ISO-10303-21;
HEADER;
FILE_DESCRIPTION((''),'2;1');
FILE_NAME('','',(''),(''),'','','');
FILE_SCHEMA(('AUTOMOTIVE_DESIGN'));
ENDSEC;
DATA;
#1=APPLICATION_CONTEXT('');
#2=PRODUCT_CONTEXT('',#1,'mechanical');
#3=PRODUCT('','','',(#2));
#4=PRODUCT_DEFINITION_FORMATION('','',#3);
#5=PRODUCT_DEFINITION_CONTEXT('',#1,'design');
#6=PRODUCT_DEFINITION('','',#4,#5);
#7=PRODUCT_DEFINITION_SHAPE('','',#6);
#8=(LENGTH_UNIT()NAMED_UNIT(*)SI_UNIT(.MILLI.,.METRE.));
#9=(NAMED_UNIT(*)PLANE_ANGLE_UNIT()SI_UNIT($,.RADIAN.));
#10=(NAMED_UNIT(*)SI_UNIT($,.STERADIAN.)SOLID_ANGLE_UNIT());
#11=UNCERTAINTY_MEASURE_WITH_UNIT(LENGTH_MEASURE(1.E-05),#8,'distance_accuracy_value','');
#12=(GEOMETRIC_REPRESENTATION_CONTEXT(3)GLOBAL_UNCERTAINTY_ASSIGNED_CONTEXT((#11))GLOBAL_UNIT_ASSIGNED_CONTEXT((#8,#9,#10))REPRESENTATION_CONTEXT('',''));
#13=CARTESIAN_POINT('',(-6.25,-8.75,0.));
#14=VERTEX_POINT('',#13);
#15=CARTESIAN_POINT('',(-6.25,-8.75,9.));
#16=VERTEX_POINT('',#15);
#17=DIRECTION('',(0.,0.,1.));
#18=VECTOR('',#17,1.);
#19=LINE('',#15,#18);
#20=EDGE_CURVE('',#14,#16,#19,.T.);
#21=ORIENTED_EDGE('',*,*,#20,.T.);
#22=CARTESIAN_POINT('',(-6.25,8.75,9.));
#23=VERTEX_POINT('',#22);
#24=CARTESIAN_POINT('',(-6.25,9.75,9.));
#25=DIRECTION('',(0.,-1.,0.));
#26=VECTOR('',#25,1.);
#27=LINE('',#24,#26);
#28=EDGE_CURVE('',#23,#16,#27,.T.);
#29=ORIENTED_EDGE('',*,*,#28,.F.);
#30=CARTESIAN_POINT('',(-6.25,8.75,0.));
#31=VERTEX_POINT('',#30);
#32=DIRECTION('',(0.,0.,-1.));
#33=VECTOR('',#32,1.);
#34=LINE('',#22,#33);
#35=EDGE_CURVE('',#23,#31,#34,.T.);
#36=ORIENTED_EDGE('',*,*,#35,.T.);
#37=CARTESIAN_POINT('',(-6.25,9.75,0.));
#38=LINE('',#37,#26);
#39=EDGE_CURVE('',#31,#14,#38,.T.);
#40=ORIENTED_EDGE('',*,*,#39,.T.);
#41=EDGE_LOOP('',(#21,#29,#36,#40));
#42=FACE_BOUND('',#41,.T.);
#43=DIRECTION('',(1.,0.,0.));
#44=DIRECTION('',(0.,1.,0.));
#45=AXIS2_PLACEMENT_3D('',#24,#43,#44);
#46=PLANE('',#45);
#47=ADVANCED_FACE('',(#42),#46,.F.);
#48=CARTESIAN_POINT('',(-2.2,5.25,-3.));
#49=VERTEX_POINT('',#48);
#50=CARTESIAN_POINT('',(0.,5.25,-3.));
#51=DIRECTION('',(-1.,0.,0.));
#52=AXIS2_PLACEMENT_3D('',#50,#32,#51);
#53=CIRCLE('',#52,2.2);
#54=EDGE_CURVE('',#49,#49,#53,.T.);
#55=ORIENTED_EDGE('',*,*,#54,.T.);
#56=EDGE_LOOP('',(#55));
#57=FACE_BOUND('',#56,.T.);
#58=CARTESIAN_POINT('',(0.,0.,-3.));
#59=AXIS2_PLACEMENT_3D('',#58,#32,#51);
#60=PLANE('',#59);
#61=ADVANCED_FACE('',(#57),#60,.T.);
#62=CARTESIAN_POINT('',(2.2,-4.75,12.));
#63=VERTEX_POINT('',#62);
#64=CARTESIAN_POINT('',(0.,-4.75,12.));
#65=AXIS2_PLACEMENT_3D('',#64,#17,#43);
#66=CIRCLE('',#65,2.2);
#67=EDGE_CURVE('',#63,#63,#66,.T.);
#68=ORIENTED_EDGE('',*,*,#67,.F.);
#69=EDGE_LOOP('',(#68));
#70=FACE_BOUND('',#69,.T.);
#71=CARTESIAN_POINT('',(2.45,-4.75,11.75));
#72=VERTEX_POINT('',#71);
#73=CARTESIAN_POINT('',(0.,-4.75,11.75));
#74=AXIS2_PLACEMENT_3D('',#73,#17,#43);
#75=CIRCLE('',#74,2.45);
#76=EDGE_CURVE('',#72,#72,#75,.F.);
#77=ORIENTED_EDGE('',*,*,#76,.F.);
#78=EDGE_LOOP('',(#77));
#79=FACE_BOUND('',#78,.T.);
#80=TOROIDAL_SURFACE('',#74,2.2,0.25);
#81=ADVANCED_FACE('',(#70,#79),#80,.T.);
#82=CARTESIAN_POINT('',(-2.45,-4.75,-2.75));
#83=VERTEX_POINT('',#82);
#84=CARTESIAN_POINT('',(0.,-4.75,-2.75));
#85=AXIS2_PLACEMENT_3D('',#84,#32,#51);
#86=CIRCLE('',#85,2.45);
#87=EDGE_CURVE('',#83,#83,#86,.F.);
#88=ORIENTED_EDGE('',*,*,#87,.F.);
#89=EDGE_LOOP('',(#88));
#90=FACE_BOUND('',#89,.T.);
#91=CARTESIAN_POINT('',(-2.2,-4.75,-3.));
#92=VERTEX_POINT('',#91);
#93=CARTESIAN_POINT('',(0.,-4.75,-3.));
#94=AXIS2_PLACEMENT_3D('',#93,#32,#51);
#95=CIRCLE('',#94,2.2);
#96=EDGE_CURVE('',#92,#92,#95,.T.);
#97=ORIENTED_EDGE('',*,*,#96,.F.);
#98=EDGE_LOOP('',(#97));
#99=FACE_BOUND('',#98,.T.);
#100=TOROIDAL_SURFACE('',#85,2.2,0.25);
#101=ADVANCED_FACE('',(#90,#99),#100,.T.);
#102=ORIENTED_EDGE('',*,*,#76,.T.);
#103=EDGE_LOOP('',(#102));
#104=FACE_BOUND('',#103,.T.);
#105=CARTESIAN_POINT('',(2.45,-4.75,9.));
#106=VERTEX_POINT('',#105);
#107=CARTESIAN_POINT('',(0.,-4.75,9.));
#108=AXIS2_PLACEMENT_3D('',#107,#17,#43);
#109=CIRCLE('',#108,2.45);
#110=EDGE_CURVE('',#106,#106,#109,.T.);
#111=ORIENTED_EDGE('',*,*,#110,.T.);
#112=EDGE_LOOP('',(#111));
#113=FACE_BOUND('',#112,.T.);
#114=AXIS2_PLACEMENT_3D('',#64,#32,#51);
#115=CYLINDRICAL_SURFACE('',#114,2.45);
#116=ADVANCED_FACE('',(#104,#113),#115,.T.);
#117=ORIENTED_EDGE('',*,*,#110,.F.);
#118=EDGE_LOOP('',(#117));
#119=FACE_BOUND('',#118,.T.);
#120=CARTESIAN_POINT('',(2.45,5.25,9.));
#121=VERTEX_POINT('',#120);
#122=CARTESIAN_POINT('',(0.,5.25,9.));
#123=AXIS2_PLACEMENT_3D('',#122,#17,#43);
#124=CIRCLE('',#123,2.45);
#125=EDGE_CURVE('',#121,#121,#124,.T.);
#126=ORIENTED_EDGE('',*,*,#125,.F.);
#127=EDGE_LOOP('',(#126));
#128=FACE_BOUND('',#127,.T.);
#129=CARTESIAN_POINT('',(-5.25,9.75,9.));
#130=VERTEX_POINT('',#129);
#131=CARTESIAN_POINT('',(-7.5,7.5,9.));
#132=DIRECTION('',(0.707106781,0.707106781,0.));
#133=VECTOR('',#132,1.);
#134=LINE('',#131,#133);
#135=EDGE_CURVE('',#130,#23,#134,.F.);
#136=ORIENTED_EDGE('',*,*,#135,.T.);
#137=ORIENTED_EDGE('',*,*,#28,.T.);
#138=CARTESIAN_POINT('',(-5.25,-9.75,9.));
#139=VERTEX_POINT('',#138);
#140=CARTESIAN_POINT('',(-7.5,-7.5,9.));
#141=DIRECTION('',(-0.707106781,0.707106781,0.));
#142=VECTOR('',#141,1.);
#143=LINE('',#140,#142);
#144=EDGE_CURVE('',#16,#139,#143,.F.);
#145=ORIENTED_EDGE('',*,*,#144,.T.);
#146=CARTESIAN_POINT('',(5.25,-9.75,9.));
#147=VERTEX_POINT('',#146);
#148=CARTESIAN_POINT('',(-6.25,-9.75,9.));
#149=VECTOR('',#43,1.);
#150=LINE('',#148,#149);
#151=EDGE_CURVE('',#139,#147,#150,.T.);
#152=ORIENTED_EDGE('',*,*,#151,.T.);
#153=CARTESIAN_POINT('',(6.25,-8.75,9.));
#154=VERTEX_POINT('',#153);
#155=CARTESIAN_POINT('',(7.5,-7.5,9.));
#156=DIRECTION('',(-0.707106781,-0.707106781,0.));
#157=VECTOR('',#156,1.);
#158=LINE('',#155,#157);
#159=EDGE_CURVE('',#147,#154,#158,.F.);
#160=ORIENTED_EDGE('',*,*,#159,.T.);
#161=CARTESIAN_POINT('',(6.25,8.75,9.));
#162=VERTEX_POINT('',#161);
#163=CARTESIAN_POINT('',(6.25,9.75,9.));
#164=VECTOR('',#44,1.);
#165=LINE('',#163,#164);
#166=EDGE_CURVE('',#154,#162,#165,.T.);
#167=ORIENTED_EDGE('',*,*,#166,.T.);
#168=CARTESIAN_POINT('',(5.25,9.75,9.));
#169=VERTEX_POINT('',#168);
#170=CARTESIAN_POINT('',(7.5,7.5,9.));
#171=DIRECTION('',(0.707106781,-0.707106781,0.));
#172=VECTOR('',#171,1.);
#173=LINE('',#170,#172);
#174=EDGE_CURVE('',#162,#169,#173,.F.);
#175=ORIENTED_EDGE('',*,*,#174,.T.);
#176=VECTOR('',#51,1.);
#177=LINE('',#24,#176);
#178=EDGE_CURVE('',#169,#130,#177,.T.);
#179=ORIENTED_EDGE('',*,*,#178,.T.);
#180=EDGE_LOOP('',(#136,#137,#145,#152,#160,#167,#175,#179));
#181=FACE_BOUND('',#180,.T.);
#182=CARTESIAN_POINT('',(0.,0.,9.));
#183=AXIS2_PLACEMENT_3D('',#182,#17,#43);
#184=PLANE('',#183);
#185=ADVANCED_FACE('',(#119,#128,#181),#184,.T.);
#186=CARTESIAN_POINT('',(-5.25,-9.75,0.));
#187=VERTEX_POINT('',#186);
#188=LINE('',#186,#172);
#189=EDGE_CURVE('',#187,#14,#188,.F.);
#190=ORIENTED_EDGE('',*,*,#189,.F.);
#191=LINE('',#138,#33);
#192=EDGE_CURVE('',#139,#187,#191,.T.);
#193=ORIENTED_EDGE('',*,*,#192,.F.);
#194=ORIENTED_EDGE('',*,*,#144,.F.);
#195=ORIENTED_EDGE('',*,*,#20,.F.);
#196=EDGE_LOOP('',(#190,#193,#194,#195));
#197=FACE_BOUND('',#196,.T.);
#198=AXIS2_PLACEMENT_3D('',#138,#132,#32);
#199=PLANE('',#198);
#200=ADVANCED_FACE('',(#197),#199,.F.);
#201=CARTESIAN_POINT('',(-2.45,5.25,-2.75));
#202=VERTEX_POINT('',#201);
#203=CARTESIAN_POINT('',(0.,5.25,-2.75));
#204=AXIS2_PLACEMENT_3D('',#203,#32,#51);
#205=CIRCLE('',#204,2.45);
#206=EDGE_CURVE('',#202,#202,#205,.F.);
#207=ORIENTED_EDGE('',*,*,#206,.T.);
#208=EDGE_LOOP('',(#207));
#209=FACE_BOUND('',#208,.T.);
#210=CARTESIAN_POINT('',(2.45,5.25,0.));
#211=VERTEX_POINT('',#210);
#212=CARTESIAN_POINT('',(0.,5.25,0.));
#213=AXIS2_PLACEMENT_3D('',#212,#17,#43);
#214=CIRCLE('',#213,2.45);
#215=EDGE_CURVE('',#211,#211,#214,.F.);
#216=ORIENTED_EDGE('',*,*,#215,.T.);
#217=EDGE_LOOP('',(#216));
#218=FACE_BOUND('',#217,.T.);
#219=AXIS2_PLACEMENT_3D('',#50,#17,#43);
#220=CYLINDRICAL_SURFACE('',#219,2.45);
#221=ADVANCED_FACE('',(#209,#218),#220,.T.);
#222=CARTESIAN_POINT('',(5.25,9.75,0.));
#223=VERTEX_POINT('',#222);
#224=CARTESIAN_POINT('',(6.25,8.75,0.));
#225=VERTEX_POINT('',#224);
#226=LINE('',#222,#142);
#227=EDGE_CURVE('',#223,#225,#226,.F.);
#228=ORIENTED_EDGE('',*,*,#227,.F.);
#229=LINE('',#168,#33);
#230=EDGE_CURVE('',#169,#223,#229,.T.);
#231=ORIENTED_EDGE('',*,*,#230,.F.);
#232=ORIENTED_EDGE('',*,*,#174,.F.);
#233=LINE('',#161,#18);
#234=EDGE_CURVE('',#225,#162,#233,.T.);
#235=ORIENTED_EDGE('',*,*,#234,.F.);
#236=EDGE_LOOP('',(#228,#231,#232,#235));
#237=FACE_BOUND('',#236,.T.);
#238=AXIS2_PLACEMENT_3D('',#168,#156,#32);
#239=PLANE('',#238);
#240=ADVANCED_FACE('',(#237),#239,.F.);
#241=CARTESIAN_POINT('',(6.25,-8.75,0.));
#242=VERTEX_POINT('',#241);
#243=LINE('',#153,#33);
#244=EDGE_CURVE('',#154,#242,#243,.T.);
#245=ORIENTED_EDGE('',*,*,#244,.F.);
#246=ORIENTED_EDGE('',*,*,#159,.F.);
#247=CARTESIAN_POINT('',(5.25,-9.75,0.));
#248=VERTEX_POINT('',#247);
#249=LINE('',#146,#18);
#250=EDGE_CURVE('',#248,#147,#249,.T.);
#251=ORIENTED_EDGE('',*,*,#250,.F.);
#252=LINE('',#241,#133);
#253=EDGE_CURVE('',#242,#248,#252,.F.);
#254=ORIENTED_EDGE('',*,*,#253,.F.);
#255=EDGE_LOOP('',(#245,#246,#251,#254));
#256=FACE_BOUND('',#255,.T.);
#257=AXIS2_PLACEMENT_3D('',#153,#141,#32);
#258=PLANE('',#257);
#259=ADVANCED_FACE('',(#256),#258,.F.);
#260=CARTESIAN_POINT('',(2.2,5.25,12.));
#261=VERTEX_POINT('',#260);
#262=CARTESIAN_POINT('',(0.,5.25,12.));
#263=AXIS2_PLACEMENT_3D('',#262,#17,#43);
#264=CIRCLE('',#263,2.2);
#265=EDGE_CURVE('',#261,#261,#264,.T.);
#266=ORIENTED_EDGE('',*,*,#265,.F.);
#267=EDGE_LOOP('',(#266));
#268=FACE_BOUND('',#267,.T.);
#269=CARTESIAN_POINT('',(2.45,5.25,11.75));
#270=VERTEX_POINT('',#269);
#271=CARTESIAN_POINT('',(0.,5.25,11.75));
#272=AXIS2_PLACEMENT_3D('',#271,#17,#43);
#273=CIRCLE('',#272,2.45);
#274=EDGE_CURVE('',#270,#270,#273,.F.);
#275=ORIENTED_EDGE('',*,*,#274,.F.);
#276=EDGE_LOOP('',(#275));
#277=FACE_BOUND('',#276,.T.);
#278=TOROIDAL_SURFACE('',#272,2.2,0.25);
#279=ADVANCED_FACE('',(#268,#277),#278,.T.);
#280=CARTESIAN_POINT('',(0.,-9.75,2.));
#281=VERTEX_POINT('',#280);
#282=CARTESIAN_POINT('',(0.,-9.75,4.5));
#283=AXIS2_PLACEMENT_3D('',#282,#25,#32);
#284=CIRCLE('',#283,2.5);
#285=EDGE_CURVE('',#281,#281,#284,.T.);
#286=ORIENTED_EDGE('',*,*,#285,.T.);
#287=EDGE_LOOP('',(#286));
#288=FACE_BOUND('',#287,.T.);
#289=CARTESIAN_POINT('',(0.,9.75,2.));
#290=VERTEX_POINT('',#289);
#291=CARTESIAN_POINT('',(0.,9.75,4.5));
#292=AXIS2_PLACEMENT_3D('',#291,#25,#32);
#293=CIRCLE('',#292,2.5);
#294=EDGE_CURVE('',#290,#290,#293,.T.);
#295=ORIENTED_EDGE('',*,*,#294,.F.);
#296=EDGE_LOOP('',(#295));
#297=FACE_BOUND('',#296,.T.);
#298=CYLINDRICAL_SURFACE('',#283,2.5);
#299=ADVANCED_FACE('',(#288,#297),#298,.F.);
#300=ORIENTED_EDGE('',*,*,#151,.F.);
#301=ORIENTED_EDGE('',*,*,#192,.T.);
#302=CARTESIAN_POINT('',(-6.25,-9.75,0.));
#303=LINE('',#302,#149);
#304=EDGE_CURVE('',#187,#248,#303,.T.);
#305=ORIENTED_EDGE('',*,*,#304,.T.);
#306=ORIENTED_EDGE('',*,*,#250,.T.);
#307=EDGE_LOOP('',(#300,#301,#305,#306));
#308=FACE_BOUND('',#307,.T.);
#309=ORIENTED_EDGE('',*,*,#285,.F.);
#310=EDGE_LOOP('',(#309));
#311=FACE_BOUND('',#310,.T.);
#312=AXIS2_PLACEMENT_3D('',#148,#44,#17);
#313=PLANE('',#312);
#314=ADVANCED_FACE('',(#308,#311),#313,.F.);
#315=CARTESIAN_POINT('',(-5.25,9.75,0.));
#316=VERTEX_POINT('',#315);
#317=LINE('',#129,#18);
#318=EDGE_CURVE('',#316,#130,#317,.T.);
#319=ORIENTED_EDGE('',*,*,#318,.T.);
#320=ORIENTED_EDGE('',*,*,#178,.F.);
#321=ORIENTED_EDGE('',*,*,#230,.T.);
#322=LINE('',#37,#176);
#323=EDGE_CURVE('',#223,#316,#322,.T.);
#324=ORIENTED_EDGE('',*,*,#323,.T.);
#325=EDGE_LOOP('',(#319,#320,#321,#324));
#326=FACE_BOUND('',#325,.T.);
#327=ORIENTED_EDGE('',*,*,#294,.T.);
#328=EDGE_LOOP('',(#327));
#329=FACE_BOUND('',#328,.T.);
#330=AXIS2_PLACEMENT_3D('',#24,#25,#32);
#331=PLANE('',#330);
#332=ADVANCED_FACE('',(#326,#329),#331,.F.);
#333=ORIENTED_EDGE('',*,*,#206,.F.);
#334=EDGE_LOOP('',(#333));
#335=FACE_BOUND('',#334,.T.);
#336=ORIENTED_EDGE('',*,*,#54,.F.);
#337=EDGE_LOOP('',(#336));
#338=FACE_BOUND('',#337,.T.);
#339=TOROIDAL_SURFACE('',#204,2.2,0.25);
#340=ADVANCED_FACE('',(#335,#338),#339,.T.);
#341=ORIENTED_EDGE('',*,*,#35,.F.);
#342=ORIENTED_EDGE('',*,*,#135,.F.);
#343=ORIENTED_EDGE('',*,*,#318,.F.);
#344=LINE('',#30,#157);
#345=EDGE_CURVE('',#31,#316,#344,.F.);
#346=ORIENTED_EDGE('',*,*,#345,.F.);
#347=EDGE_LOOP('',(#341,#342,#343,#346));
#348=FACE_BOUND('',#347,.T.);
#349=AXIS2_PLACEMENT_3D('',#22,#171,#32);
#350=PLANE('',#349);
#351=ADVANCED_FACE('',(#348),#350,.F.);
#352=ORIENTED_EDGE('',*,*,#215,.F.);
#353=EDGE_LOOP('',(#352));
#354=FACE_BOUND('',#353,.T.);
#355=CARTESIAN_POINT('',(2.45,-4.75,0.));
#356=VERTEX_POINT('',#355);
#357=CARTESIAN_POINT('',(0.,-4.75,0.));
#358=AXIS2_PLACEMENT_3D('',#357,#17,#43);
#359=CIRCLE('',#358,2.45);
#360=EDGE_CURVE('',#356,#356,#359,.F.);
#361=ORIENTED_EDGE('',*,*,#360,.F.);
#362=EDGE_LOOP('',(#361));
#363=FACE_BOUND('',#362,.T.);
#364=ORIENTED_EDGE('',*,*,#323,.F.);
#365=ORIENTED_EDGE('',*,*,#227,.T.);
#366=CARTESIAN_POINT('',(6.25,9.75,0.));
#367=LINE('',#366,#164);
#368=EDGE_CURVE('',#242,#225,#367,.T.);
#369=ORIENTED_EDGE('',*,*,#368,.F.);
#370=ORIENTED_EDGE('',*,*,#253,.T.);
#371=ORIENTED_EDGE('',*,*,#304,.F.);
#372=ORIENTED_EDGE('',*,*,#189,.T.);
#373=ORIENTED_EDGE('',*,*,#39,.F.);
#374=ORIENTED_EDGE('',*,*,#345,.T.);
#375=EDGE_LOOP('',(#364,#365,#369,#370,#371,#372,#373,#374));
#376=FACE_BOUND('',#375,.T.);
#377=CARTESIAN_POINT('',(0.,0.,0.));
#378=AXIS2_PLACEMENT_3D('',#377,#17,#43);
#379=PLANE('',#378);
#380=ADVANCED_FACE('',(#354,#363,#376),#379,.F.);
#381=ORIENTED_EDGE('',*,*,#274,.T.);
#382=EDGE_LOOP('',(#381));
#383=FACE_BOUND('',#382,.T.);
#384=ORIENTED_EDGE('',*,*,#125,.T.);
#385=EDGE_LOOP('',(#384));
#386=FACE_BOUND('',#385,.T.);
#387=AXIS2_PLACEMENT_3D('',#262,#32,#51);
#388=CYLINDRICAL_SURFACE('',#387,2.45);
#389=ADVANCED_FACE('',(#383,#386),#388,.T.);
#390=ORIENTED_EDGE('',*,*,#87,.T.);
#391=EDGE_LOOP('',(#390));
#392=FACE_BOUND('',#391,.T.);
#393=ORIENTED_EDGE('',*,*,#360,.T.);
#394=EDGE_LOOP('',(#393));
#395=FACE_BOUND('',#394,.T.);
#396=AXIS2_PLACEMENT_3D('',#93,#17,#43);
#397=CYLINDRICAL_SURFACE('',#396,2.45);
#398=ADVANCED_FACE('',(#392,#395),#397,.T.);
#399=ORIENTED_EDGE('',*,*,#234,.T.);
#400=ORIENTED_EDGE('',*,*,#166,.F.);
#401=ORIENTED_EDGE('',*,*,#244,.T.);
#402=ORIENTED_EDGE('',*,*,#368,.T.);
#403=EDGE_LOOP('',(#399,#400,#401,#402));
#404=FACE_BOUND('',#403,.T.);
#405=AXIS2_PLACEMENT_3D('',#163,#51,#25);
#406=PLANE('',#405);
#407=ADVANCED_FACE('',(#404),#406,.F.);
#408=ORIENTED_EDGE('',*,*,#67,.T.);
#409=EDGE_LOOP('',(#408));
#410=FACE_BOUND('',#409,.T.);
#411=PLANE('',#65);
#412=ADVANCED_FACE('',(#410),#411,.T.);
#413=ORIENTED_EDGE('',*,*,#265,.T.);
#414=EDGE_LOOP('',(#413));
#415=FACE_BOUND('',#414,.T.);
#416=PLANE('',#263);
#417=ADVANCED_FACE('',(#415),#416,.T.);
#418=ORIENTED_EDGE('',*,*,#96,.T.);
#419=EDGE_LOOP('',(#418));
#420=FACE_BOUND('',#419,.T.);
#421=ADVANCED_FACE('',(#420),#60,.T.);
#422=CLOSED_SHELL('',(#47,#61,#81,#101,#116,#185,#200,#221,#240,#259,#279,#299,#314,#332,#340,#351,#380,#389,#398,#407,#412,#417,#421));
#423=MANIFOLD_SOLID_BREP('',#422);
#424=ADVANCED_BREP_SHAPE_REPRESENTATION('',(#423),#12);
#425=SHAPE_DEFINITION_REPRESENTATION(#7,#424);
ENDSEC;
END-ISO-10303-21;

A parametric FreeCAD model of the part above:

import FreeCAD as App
import Part
import Sketcher

V = App.Vector


def edges_at(feature, points):
    """Names of the edges that pass closest to the given points."""
    edges = feature.Shape.Edges
    near = lambda p: min(range(len(edges)), key=lambda i: edges[i].distToShape(Part.Vertex(*p))[0])
    return sorted({f"Edge{near(p) + 1}" for p in points})


def add_polygon(sketch, points):
    """Adds a closed chain of lines whose ends are joined by coincident constraints."""
    first, n = sketch.GeometryCount, len(points)
    for a, b in zip(points, points[1:] + points[:1]):
        sketch.addGeometry(Part.LineSegment(App.Vector(*a, 0), App.Vector(*b, 0)), False)
    for i in range(n):
        sketch.addConstraint(Sketcher.Constraint("Coincident", first + i, 2, first + (i + 1) % n, 1))

doc = App.newDocument("Part")
body = doc.addObject("PartDesign::Body", "Body")

# Sketch on XY plane
sketch1 = doc.addObject("Sketcher::SketchObject", "Sketch")
body.addObject(sketch1)
sketch1.AttachmentSupport = (doc.XY_Plane, [""])
sketch1.MapMode = "FlatFace"
add_polygon(sketch1, [(-6, 10), (-6, -10), (6, -10), (6, 10)])  # lines 0-3
sketch1.addConstraint([
    Sketcher.Constraint("Vertical", 0),
    Sketcher.Constraint("Horizontal", 1),
    Sketcher.Constraint("Vertical", 2),
    Sketcher.Constraint("Horizontal", 3),
    Sketcher.Constraint("Symmetric", 0, 2, 2, 2, -1, 1),
    Sketcher.Constraint("DistanceX", 1, 1, 1, 2, 12.5),
    Sketcher.Constraint("DistanceY", 0, 2, 0, 1, 19.5),
])
pad1 = doc.addObject("PartDesign::Pad", "Pad")
body.addObject(pad1)
pad1.Profile = sketch1
pad1.Length = 9

# Sketch on XY plane
sketch2 = doc.addObject("Sketcher::SketchObject", "Sketch001")
body.addObject(sketch2)
sketch2.AttachmentSupport = (doc.XY_Plane, [""])
sketch2.MapMode = "FlatFace"
sketch2.AttachmentOffset = App.Placement(V(0, 0, 9), App.Rotation())
sketch2.addGeometry([
    Part.Circle(V(0, 5.2, 0), V(0, 0, 1), 2.5),
    Part.Circle(V(0, -4.8, 0), V(0, 0, 1), 2.5),
], False)
sketch2.addConstraint([
    Sketcher.Constraint("Equal", 0, 1),
    Sketcher.Constraint("PointOnObject", 0, 3, -2),
    Sketcher.Constraint("PointOnObject", 1, 3, -2),
    Sketcher.Constraint("Diameter", 0, 4.9),
    Sketcher.Constraint("DistanceY", 1, 3, 0, 3, 10.0),
    Sketcher.Constraint("DistanceY", -1, 1, 0, 3, 5.25),
])
pad2 = doc.addObject("PartDesign::Pad", "Pad001")
body.addObject(pad2)
pad2.Profile = sketch2
pad2.Length = 3

# Sketch on XY plane
sketch3 = doc.addObject("Sketcher::SketchObject", "Sketch002")
body.addObject(sketch3)
sketch3.AttachmentSupport = (doc.XY_Plane, [""])
sketch3.MapMode = "FlatFace"
sketch3.AttachmentOffset = App.Placement(V(0, 0, -3), App.Rotation())
sketch3.addGeometry([
    Part.Circle(V(0, -4.8, 0), V(0, 0, 1), 2.5),
    Part.Circle(V(0, 5.2, 0), V(0, 0, 1), 2.5),
], False)
sketch3.addConstraint([
    Sketcher.Constraint("Equal", 0, 1),
    Sketcher.Constraint("PointOnObject", 0, 3, -2),
    Sketcher.Constraint("PointOnObject", 1, 3, -2),
    Sketcher.Constraint("Diameter", 0, 4.9),
    Sketcher.Constraint("DistanceY", 0, 3, 1, 3, 10.0),
    Sketcher.Constraint("DistanceY", 0, 3, -1, 1, 4.75),
])
pad3 = doc.addObject("PartDesign::Pad", "Pad002")
body.addObject(pad3)
pad3.Profile = sketch3
pad3.Length = 3
doc.recompute()

fillet = doc.addObject("PartDesign::Fillet", "Fillet")
body.addObject(fillet)
fillet.Base = (pad3, edges_at(pad3, [
    (-2.45, -4.75, 12),
    (-2.45, 5.25, 12),
    (-2.45, -4.75, -3),
    (-2.45, 5.25, -3),
]))
fillet.Radius = 0.25

# Sketch on XZ plane
sketch4 = doc.addObject("Sketcher::SketchObject", "Sketch003")
body.addObject(sketch4)
sketch4.AttachmentSupport = (doc.XZ_Plane, [""])
sketch4.MapMode = "FlatFace"
sketch4.AttachmentOffset = App.Placement(V(0, 0, 9.75), App.Rotation())
sketch4.addGeometry(Part.Circle(V(0, 4.5, 0), V(0, 0, 1), 2.5), False)
sketch4.addConstraint([
    Sketcher.Constraint("PointOnObject", 0, 3, -2),
    Sketcher.Constraint("Diameter", 0, 5.0),
    Sketcher.Constraint("DistanceY", -1, 1, 0, 3, 4.5),
])
doc.recompute()
hole = doc.addObject("PartDesign::Hole", "Hole")
body.addObject(hole)
hole.Profile = sketch4
hole.ThreadType = "None"
hole.Diameter = 5
hole.DepthType = "ThroughAll"
doc.recompute()

chamfer = doc.addObject("PartDesign::Chamfer", "Chamfer")
body.addObject(chamfer)
chamfer.Base = (hole, edges_at(hole, [
    (6.25, -9.75, 4.5),
    (-6.25, -9.75, 4.5),
    (-6.25, 9.75, 4.5),
    (6.25, 9.75, 4.5),
]))
chamfer.Size = 1

doc.recompute()
